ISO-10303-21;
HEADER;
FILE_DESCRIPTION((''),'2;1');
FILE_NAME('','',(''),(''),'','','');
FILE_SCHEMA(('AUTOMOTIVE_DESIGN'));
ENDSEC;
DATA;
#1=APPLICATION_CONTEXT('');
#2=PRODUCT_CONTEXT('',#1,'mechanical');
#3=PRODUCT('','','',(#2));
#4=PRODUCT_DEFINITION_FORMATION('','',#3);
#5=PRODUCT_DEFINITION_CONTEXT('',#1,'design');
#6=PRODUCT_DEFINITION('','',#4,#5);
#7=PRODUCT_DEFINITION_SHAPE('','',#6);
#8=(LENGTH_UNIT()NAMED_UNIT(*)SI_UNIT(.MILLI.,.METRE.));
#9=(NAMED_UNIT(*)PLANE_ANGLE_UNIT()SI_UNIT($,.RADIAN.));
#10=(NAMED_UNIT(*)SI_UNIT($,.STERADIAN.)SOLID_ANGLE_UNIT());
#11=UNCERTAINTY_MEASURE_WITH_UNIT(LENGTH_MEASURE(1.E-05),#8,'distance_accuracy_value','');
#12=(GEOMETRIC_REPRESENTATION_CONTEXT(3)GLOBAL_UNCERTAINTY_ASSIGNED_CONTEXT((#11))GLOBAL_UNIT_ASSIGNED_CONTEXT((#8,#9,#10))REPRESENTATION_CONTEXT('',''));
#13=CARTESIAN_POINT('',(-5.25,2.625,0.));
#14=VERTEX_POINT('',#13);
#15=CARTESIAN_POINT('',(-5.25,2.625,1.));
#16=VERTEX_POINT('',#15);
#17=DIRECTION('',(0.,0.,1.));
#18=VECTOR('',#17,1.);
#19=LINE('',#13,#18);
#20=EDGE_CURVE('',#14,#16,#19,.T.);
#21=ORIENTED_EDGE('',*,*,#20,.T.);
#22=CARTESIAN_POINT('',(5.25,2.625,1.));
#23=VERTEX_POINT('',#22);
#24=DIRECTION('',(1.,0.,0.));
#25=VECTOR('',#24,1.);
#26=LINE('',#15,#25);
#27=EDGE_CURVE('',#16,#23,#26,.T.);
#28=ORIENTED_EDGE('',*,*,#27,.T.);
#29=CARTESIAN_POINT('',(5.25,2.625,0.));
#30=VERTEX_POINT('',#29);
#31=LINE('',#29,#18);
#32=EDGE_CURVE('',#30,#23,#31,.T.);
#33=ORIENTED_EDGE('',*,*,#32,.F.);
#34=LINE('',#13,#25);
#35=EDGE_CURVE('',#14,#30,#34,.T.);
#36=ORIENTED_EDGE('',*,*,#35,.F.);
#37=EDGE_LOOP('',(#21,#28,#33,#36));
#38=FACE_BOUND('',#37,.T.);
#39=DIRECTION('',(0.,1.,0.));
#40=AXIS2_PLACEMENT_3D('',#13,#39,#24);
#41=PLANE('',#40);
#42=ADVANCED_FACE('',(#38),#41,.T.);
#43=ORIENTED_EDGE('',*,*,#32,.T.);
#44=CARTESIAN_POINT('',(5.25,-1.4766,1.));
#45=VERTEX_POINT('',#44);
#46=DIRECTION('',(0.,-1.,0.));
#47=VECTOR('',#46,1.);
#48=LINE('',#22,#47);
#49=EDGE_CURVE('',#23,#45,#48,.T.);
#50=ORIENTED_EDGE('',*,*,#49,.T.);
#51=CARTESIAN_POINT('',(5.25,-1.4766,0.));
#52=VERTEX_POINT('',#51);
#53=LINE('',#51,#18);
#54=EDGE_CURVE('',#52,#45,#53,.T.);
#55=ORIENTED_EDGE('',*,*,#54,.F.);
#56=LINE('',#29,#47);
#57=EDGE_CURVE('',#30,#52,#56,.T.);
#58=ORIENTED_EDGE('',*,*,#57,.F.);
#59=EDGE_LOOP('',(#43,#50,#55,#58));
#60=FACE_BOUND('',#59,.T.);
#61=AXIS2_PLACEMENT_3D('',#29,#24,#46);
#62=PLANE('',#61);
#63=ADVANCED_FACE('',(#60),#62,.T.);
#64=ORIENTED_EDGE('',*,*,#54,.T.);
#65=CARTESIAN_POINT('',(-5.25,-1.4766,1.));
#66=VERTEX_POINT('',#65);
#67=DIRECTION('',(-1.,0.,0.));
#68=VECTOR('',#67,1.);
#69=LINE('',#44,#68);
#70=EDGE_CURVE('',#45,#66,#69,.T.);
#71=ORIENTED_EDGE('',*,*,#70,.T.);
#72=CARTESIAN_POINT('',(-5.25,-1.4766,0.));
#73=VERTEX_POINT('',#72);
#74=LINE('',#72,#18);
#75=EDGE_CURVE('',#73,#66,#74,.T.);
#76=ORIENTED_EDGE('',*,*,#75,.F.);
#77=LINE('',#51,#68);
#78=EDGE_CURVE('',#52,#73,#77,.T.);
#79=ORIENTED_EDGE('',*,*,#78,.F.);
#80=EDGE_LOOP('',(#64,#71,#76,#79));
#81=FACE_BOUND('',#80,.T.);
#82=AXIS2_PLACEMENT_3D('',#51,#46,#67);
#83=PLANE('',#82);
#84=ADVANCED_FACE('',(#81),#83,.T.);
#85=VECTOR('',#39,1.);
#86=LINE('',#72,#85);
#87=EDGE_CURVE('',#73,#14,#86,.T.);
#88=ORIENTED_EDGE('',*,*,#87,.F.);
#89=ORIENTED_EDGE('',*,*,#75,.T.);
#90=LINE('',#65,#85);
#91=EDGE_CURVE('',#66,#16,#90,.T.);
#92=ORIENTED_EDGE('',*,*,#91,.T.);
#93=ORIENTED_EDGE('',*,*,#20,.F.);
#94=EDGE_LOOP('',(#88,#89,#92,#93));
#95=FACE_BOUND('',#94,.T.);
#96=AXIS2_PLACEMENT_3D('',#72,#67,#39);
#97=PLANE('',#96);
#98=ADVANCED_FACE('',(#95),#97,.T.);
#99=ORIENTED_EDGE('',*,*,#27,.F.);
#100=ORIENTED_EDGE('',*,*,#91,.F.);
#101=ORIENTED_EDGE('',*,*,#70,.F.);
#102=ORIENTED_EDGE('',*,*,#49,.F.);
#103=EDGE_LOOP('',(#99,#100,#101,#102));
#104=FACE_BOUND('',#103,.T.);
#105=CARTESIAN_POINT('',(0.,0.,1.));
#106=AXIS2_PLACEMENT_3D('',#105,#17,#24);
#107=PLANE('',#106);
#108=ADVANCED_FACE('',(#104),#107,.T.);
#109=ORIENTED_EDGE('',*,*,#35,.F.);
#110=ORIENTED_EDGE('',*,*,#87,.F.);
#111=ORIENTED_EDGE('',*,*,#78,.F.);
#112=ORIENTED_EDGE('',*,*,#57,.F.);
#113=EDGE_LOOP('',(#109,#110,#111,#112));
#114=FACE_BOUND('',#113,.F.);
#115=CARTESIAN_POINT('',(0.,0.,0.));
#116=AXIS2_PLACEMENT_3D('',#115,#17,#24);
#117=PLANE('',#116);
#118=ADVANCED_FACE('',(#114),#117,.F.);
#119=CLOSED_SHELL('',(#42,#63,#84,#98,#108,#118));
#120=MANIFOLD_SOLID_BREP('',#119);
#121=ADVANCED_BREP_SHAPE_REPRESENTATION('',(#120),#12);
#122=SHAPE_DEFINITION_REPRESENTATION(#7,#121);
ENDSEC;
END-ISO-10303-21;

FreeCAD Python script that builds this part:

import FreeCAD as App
import Part
import Sketcher
Q = App.Units.Quantity

doc = App.newDocument("Part")
body = doc.addObject("PartDesign::Body", "Body")

# Sketch on XY plane
sketch1 = body.newObject("Sketcher::SketchObject", "Sketch")
sketch1.AttachmentSupport = (doc.getObject("XY_Plane"), [""])
sketch1.MapMode = "FlatFace"
sketch1.addGeometry([
    Part.LineSegment(App.Vector(5.2, 2.6, 0), App.Vector(-5.2, 2.6, 0)),
    Part.LineSegment(App.Vector(-5.2, 2.6, 0), App.Vector(-5.2, -1.5, 0)),
    Part.LineSegment(App.Vector(-5.2, -1.5, 0), App.Vector(5.2, -1.5, 0)),
    Part.LineSegment(App.Vector(5.2, -1.5, 0), App.Vector(5.2, 2.6, 0)),
], False)
sketch1.addConstraint([
    Sketcher.Constraint("Coincident", 0, 2, 1, 1),
    Sketcher.Constraint("Coincident", 1, 2, 2, 1),
    Sketcher.Constraint("Coincident", 2, 2, 3, 1),
    Sketcher.Constraint("Coincident", 3, 2, 0, 1),
    Sketcher.Constraint("Horizontal", 0),
    Sketcher.Constraint("Vertical", 1),
    Sketcher.Constraint("Horizontal", 2),
    Sketcher.Constraint("Vertical", 3),
    Sketcher.Constraint("DistanceX", 0, 2, 0, 1, Q("10.5 mm")),
    Sketcher.Constraint("DistanceX", 0, 2, -1, 1, Q("5.25 mm")),
    Sketcher.Constraint("DistanceY", 1, 2, 1, 1, Q("4.1016 mm")),
    Sketcher.Constraint("DistanceY", -1, 1, 0, 2, Q("2.625 mm")),
])
pad1 = body.newObject("PartDesign::Pad", "Pad")
pad1.Profile = sketch1
pad1.Length = 1

doc.recompute()
